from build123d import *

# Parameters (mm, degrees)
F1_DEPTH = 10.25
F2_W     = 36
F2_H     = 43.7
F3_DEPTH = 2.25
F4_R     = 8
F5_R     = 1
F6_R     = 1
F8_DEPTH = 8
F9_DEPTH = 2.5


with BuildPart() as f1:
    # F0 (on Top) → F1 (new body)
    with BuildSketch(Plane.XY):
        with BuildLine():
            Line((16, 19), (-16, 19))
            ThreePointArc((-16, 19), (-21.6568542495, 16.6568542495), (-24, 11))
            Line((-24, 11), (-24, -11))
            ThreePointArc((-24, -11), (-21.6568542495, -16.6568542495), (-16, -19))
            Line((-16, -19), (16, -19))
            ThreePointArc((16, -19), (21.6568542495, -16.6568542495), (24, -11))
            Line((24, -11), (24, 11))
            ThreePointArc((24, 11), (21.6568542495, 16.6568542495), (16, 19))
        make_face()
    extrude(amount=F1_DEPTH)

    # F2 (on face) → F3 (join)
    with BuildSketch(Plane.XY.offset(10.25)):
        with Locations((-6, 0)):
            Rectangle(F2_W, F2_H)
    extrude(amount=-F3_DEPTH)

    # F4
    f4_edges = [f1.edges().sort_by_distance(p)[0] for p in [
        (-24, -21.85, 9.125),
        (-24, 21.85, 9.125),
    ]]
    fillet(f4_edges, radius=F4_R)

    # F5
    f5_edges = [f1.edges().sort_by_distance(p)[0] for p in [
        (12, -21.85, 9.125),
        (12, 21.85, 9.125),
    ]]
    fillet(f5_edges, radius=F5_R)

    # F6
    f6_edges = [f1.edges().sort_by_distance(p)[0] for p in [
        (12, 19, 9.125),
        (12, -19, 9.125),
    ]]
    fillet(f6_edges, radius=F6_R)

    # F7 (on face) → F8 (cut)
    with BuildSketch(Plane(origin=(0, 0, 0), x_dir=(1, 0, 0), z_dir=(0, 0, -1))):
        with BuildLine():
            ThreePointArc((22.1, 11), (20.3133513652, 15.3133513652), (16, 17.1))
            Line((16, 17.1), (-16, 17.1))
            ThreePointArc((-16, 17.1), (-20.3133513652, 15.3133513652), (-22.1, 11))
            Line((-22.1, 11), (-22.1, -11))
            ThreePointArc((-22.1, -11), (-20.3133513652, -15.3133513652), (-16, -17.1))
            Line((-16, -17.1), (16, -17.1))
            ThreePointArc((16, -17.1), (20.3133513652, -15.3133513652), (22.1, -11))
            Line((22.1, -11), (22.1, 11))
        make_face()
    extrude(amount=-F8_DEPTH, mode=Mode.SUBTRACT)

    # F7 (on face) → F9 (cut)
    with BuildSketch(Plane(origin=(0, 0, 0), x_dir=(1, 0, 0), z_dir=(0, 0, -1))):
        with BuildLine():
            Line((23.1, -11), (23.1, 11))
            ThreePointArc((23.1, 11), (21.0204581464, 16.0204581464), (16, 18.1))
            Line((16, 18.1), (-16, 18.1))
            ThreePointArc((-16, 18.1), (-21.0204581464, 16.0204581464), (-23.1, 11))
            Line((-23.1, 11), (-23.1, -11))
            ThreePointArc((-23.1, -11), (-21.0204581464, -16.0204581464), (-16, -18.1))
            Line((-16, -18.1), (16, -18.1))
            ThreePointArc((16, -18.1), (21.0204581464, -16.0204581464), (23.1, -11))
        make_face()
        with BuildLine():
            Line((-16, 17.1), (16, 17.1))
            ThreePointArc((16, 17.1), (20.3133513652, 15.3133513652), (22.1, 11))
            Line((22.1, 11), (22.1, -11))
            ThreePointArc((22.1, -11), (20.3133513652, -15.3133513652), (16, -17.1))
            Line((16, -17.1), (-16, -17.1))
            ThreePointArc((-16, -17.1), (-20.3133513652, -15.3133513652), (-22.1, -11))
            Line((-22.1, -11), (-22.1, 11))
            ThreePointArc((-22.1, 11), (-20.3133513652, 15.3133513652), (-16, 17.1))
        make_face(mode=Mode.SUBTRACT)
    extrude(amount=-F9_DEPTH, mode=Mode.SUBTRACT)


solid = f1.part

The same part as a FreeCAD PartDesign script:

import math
import FreeCAD as App
import Part
import Sketcher

V = App.Vector
Q = App.Units.Quantity


def edges_at(feature, points):
    """Names of the edges that pass closest to the given points."""
    edges = feature.Shape.Edges
    near = lambda p: min(range(len(edges)), key=lambda i: edges[i].distToShape(Part.Vertex(*p))[0])
    return sorted({f"Edge{near(p) + 1}" for p in points})

doc = App.newDocument("Part")
body = doc.addObject("PartDesign::Body", "Body")

# Sketch on XY plane
sketch1 = doc.addObject("Sketcher::SketchObject", "Sketch")
body.addObject(sketch1)
sketch1.AttachmentSupport = (doc.XY_Plane, [""])
sketch1.MapMode = "FlatFace"
sketch1.addGeometry([
    Part.LineSegment(V(16, 19, 0), V(-16, 19, 0)),  # 0
    Part.ArcOfCircle(Part.Circle(V(-16, 11, 0), V(0, 0, 1), 8), math.radians(90), math.radians(180)),  # 1
    Part.LineSegment(V(-24, 11, 0), V(-24, -11, 0)),  # 2
    Part.ArcOfCircle(Part.Circle(V(-16, -11, 0), V(0, 0, 1), 8), math.radians(180), math.radians(270)),  # 3
    Part.LineSegment(V(-16, -19, 0), V(16, -19, 0)),  # 4
    Part.ArcOfCircle(Part.Circle(V(16, -11, 0), V(0, 0, 1), 8), math.radians(-90), math.radians(0)),  # 5
    Part.LineSegment(V(24, -11, 0), V(24, 11, 0)),  # 6
    Part.ArcOfCircle(Part.Circle(V(16, 11, 0), V(0, 0, 1), 8), math.radians(0), math.radians(90)),  # 7
], False)
sketch1.addConstraint([
    Sketcher.Constraint("Tangent", 0, 2, 1, 1),
    Sketcher.Constraint("Tangent", 1, 2, 2, 1),
    Sketcher.Constraint("Tangent", 2, 2, 3, 1),
    Sketcher.Constraint("Tangent", 3, 2, 4, 1),
    Sketcher.Constraint("Tangent", 4, 2, 5, 1),
    Sketcher.Constraint("Tangent", 5, 2, 6, 1),
    Sketcher.Constraint("Tangent", 6, 2, 7, 1),
    Sketcher.Constraint("Tangent", 7, 2, 0, 1),
    Sketcher.Constraint("Horizontal", 0),
    Sketcher.Constraint("Vertical", 2),
    Sketcher.Constraint("Horizontal", 4),
    Sketcher.Constraint("Vertical", 6),
    Sketcher.Constraint("Equal", 1, 3),
    Sketcher.Constraint("Equal", 3, 5),
    Sketcher.Constraint("Equal", 5, 7),
    Sketcher.Constraint("Symmetric", 1, 3, 5, 3, -1, 1),
    Sketcher.Constraint("Radius", 1, Q("8 mm")),
    Sketcher.Constraint("DistanceX", 0, 2, 0, 1, Q("32 mm")),
    Sketcher.Constraint("DistanceY", 2, 2, 2, 1, Q("22 mm")),
])
pad1 = doc.addObject("PartDesign::Pad", "Pad")
body.addObject(pad1)
pad1.Profile = sketch1
pad1.Length = 10.25

# Sketch on XY plane
sketch2 = doc.addObject("Sketcher::SketchObject", "Sketch001")
body.addObject(sketch2)
sketch2.AttachmentSupport = (doc.XY_Plane, [""])
sketch2.MapMode = "FlatFace"
sketch2.AttachmentOffset = App.Placement(V(0, 0, 10.25), App.Rotation())
sketch2.addGeometry([
    Part.LineSegment(V(-24, 21.85, 0), V(-24, -21.85, 0)),
    Part.LineSegment(V(-24, -21.85, 0), V(12, -21.85, 0)),
    Part.LineSegment(V(12, -21.85, 0), V(12, 21.85, 0)),
    Part.LineSegment(V(12, 21.85, 0), V(-24, 21.85, 0)),
], False)
sketch2.addConstraint([
    Sketcher.Constraint("Coincident", 0, 2, 1, 1),
    Sketcher.Constraint("Coincident", 1, 2, 2, 1),
    Sketcher.Constraint("Coincident", 2, 2, 3, 1),
    Sketcher.Constraint("Coincident", 3, 2, 0, 1),
    Sketcher.Constraint("Vertical", 0),
    Sketcher.Constraint("Horizontal", 1),
    Sketcher.Constraint("Vertical", 2),
    Sketcher.Constraint("Horizontal", 3),
    Sketcher.Constraint("DistanceX", 1, 1, 1, 2, Q("36 mm")),
    Sketcher.Constraint("DistanceY", 0, 2, 0, 1, Q("43.7 mm")),
    Sketcher.Constraint("DistanceX", 0, 2, -1, 1, Q("24 mm")),
    Sketcher.Constraint("DistanceY", 0, 2, -1, 1, Q("21.85 mm")),
])
pad2 = doc.addObject("PartDesign::Pad", "Pad001")
body.addObject(pad2)
pad2.Profile = sketch2
pad2.Length = 2.25
pad2.Reversed = True
doc.recompute()

fillet = doc.addObject("PartDesign::Fillet", "Fillet")
body.addObject(fillet)
fillet.Base = (pad2, edges_at(pad2, [(-24, -21.85, 9.125), (-24, 21.85, 9.125)]))
fillet.Radius = 8
doc.recompute()

fillet2 = doc.addObject("PartDesign::Fillet", "Fillet001")
body.addObject(fillet2)
fillet2.Base = (fillet, edges_at(fillet, [(12, -21.85, 9.125), (12, 21.85, 9.125)]))
fillet2.Radius = 1
doc.recompute()

fillet3 = doc.addObject("PartDesign::Fillet", "Fillet002")
body.addObject(fillet3)
fillet3.Base = (fillet2, edges_at(fillet2, [(12, 19, 9.125), (12, -19, 9.125)]))
fillet3.Radius = 1

# Sketch on XY plane
sketch3 = doc.addObject("Sketcher::SketchObject", "Sketch002")
body.addObject(sketch3)
sketch3.AttachmentSupport = (doc.XY_Plane, [""])
sketch3.MapMode = "FlatFace"
sketch3.addGeometry([
    Part.ArcOfCircle(Part.Circle(V(16, -11, 0), V(0, 0, 1), 6.1), math.radians(-90), math.radians(0)),  # 0
    Part.LineSegment(V(16, -17.1, 0), V(-16, -17.1, 0)),  # 1
    Part.ArcOfCircle(Part.Circle(V(-16, -11, 0), V(0, 0, 1), 6.1), math.radians(180), math.radians(270)),  # 2
    Part.LineSegment(V(-22.1, -11, 0), V(-22.1, 11, 0)),  # 3
    Part.ArcOfCircle(Part.Circle(V(-16, 11, 0), V(0, 0, 1), 6.1), math.radians(90), math.radians(180)),  # 4
    Part.LineSegment(V(-16, 17.1, 0), V(16, 17.1, 0)),  # 5
    Part.ArcOfCircle(Part.Circle(V(16, 11, 0), V(0, 0, 1), 6.1), math.radians(0), math.radians(90)),  # 6
    Part.LineSegment(V(22.1, 11, 0), V(22.1, -11, 0)),  # 7
], False)
sketch3.addConstraint([
    Sketcher.Constraint("Tangent", 0, 1, 1, 1),
    Sketcher.Constraint("Tangent", 1, 2, 2, 2),
    Sketcher.Constraint("Tangent", 2, 1, 3, 1),
    Sketcher.Constraint("Tangent", 3, 2, 4, 2),
    Sketcher.Constraint("Tangent", 4, 1, 5, 1),
    Sketcher.Constraint("Tangent", 5, 2, 6, 2),
    Sketcher.Constraint("Tangent", 6, 1, 7, 1),
    Sketcher.Constraint("Tangent", 7, 2, 0, 2),
    Sketcher.Constraint("Horizontal", 1),
    Sketcher.Constraint("Vertical", 3),
    Sketcher.Constraint("Horizontal", 5),
    Sketcher.Constraint("Vertical", 7),
    Sketcher.Constraint("Equal", 0, 2),
    Sketcher.Constraint("Equal", 2, 4),
    Sketcher.Constraint("Equal", 4, 6),
    Sketcher.Constraint("Symmetric", 0, 3, 4, 3, -1, 1),
    Sketcher.Constraint("Radius", 0, Q("6.1 mm")),
    Sketcher.Constraint("DistanceX", 1, 2, 1, 1, Q("32 mm")),
    Sketcher.Constraint("DistanceY", 3, 1, 3, 2, Q("22 mm")),
])
pocket1 = doc.addObject("PartDesign::Pocket", "Pocket")
body.addObject(pocket1)
pocket1.Profile = sketch3
pocket1.Length = 8
pocket1.Reversed = True

# Sketch on XY plane
sketch4 = doc.addObject("Sketcher::SketchObject", "Sketch003")
body.addObject(sketch4)
sketch4.AttachmentSupport = (doc.XY_Plane, [""])
sketch4.MapMode = "FlatFace"
sketch4.addGeometry([
    Part.LineSegment(V(23.1, 11, 0), V(23.1, -11, 0)),  # 0
    Part.ArcOfCircle(Part.Circle(V(16, -11, 0), V(0, 0, 1), 7.1), math.radians(-90), math.radians(0)),  # 1
    Part.LineSegment(V(16, -18.1, 0), V(-16, -18.1, 0)),  # 2
    Part.ArcOfCircle(Part.Circle(V(-16, -11, 0), V(0, 0, 1), 7.1), math.radians(180), math.radians(270)),  # 3
    Part.LineSegment(V(-23.1, -11, 0), V(-23.1, 11, 0)),  # 4
    Part.ArcOfCircle(Part.Circle(V(-16, 11, 0), V(0, 0, 1), 7.1), math.radians(90), math.radians(180)),  # 5
    Part.LineSegment(V(-16, 18.1, 0), V(16, 18.1, 0)),  # 6
    Part.ArcOfCircle(Part.Circle(V(16, 11, 0), V(0, 0, 1), 7.1), math.radians(0), math.radians(90)),  # 7
    Part.ArcOfCircle(Part.Circle(V(-16, -11, 0), V(0, 0, 1), 6.1), math.radians(180), math.radians(270)),  # 8
    Part.LineSegment(V(-16, -17.1, 0), V(16, -17.1, 0)),  # 9
    Part.ArcOfCircle(Part.Circle(V(16, -11, 0), V(0, 0, 1), 6.1), math.radians(-90), math.radians(0)),  # 10
    Part.LineSegment(V(22.1, -11, 0), V(22.1, 11, 0)),  # 11
    Part.ArcOfCircle(Part.Circle(V(16, 11, 0), V(0, 0, 1), 6.1), math.radians(0), math.radians(90)),  # 12
    Part.LineSegment(V(16, 17.1, 0), V(-16, 17.1, 0)),  # 13
    Part.ArcOfCircle(Part.Circle(V(-16, 11, 0), V(0, 0, 1), 6.1), math.radians(90), math.radians(180)),  # 14
    Part.LineSegment(V(-22.1, 11, 0), V(-22.1, -11, 0)),  # 15
], False)
sketch4.addConstraint([
    Sketcher.Constraint("Tangent", 0, 2, 1, 2),
    Sketcher.Constraint("Tangent", 1, 1, 2, 1),
    Sketcher.Constraint("Tangent", 2, 2, 3, 2),
    Sketcher.Constraint("Tangent", 3, 1, 4, 1),
    Sketcher.Constraint("Tangent", 4, 2, 5, 2),
    Sketcher.Constraint("Tangent", 5, 1, 6, 1),
    Sketcher.Constraint("Tangent", 6, 2, 7, 2),
    Sketcher.Constraint("Tangent", 7, 1, 0, 1),
    Sketcher.Constraint("Tangent", 8, 2, 9, 1),
    Sketcher.Constraint("Tangent", 9, 2, 10, 1),
    Sketcher.Constraint("Tangent", 10, 2, 11, 1),
    Sketcher.Constraint("Tangent", 11, 2, 12, 1),
    Sketcher.Constraint("Tangent", 12, 2, 13, 1),
    Sketcher.Constraint("Tangent", 13, 2, 14, 1),
    Sketcher.Constraint("Tangent", 14, 2, 15, 1),
    Sketcher.Constraint("Tangent", 15, 2, 8, 1),
    Sketcher.Constraint("Vertical", 0),
    Sketcher.Constraint("Horizontal", 2),
    Sketcher.Constraint("Vertical", 4),
    Sketcher.Constraint("Horizontal", 6),
    Sketcher.Constraint("Horizontal", 9),
    Sketcher.Constraint("Vertical", 11),
    Sketcher.Constraint("Horizontal", 13),
    Sketcher.Constraint("Vertical", 15),
    Sketcher.Constraint("Coincident", 8, 3, 3, 3),
    Sketcher.Constraint("Coincident", 10, 3, 1, 3),
    Sketcher.Constraint("Coincident", 12, 3, 7, 3),
    Sketcher.Constraint("Equal", 1, 3),
    Sketcher.Constraint("Equal", 3, 5),
    Sketcher.Constraint("Equal", 5, 7),
    Sketcher.Constraint("Equal", 12, 14),
    Sketcher.Constraint("Symmetric", 1, 3, 5, 3, -1, 1),
    Sketcher.Constraint("Radius", 1, Q("7.1 mm")),
    Sketcher.Constraint("Radius", 8, Q("6.1 mm")),
    Sketcher.Constraint("DistanceX", 2, 2, 2, 1, Q("32 mm")),
    Sketcher.Constraint("DistanceY", 0, 2, 0, 1, Q("22 mm")),
])
pocket2 = doc.addObject("PartDesign::Pocket", "Pocket001")
body.addObject(pocket2)
pocket2.Profile = sketch4
pocket2.Length = 2.5
pocket2.Reversed = True

doc.recompute()
